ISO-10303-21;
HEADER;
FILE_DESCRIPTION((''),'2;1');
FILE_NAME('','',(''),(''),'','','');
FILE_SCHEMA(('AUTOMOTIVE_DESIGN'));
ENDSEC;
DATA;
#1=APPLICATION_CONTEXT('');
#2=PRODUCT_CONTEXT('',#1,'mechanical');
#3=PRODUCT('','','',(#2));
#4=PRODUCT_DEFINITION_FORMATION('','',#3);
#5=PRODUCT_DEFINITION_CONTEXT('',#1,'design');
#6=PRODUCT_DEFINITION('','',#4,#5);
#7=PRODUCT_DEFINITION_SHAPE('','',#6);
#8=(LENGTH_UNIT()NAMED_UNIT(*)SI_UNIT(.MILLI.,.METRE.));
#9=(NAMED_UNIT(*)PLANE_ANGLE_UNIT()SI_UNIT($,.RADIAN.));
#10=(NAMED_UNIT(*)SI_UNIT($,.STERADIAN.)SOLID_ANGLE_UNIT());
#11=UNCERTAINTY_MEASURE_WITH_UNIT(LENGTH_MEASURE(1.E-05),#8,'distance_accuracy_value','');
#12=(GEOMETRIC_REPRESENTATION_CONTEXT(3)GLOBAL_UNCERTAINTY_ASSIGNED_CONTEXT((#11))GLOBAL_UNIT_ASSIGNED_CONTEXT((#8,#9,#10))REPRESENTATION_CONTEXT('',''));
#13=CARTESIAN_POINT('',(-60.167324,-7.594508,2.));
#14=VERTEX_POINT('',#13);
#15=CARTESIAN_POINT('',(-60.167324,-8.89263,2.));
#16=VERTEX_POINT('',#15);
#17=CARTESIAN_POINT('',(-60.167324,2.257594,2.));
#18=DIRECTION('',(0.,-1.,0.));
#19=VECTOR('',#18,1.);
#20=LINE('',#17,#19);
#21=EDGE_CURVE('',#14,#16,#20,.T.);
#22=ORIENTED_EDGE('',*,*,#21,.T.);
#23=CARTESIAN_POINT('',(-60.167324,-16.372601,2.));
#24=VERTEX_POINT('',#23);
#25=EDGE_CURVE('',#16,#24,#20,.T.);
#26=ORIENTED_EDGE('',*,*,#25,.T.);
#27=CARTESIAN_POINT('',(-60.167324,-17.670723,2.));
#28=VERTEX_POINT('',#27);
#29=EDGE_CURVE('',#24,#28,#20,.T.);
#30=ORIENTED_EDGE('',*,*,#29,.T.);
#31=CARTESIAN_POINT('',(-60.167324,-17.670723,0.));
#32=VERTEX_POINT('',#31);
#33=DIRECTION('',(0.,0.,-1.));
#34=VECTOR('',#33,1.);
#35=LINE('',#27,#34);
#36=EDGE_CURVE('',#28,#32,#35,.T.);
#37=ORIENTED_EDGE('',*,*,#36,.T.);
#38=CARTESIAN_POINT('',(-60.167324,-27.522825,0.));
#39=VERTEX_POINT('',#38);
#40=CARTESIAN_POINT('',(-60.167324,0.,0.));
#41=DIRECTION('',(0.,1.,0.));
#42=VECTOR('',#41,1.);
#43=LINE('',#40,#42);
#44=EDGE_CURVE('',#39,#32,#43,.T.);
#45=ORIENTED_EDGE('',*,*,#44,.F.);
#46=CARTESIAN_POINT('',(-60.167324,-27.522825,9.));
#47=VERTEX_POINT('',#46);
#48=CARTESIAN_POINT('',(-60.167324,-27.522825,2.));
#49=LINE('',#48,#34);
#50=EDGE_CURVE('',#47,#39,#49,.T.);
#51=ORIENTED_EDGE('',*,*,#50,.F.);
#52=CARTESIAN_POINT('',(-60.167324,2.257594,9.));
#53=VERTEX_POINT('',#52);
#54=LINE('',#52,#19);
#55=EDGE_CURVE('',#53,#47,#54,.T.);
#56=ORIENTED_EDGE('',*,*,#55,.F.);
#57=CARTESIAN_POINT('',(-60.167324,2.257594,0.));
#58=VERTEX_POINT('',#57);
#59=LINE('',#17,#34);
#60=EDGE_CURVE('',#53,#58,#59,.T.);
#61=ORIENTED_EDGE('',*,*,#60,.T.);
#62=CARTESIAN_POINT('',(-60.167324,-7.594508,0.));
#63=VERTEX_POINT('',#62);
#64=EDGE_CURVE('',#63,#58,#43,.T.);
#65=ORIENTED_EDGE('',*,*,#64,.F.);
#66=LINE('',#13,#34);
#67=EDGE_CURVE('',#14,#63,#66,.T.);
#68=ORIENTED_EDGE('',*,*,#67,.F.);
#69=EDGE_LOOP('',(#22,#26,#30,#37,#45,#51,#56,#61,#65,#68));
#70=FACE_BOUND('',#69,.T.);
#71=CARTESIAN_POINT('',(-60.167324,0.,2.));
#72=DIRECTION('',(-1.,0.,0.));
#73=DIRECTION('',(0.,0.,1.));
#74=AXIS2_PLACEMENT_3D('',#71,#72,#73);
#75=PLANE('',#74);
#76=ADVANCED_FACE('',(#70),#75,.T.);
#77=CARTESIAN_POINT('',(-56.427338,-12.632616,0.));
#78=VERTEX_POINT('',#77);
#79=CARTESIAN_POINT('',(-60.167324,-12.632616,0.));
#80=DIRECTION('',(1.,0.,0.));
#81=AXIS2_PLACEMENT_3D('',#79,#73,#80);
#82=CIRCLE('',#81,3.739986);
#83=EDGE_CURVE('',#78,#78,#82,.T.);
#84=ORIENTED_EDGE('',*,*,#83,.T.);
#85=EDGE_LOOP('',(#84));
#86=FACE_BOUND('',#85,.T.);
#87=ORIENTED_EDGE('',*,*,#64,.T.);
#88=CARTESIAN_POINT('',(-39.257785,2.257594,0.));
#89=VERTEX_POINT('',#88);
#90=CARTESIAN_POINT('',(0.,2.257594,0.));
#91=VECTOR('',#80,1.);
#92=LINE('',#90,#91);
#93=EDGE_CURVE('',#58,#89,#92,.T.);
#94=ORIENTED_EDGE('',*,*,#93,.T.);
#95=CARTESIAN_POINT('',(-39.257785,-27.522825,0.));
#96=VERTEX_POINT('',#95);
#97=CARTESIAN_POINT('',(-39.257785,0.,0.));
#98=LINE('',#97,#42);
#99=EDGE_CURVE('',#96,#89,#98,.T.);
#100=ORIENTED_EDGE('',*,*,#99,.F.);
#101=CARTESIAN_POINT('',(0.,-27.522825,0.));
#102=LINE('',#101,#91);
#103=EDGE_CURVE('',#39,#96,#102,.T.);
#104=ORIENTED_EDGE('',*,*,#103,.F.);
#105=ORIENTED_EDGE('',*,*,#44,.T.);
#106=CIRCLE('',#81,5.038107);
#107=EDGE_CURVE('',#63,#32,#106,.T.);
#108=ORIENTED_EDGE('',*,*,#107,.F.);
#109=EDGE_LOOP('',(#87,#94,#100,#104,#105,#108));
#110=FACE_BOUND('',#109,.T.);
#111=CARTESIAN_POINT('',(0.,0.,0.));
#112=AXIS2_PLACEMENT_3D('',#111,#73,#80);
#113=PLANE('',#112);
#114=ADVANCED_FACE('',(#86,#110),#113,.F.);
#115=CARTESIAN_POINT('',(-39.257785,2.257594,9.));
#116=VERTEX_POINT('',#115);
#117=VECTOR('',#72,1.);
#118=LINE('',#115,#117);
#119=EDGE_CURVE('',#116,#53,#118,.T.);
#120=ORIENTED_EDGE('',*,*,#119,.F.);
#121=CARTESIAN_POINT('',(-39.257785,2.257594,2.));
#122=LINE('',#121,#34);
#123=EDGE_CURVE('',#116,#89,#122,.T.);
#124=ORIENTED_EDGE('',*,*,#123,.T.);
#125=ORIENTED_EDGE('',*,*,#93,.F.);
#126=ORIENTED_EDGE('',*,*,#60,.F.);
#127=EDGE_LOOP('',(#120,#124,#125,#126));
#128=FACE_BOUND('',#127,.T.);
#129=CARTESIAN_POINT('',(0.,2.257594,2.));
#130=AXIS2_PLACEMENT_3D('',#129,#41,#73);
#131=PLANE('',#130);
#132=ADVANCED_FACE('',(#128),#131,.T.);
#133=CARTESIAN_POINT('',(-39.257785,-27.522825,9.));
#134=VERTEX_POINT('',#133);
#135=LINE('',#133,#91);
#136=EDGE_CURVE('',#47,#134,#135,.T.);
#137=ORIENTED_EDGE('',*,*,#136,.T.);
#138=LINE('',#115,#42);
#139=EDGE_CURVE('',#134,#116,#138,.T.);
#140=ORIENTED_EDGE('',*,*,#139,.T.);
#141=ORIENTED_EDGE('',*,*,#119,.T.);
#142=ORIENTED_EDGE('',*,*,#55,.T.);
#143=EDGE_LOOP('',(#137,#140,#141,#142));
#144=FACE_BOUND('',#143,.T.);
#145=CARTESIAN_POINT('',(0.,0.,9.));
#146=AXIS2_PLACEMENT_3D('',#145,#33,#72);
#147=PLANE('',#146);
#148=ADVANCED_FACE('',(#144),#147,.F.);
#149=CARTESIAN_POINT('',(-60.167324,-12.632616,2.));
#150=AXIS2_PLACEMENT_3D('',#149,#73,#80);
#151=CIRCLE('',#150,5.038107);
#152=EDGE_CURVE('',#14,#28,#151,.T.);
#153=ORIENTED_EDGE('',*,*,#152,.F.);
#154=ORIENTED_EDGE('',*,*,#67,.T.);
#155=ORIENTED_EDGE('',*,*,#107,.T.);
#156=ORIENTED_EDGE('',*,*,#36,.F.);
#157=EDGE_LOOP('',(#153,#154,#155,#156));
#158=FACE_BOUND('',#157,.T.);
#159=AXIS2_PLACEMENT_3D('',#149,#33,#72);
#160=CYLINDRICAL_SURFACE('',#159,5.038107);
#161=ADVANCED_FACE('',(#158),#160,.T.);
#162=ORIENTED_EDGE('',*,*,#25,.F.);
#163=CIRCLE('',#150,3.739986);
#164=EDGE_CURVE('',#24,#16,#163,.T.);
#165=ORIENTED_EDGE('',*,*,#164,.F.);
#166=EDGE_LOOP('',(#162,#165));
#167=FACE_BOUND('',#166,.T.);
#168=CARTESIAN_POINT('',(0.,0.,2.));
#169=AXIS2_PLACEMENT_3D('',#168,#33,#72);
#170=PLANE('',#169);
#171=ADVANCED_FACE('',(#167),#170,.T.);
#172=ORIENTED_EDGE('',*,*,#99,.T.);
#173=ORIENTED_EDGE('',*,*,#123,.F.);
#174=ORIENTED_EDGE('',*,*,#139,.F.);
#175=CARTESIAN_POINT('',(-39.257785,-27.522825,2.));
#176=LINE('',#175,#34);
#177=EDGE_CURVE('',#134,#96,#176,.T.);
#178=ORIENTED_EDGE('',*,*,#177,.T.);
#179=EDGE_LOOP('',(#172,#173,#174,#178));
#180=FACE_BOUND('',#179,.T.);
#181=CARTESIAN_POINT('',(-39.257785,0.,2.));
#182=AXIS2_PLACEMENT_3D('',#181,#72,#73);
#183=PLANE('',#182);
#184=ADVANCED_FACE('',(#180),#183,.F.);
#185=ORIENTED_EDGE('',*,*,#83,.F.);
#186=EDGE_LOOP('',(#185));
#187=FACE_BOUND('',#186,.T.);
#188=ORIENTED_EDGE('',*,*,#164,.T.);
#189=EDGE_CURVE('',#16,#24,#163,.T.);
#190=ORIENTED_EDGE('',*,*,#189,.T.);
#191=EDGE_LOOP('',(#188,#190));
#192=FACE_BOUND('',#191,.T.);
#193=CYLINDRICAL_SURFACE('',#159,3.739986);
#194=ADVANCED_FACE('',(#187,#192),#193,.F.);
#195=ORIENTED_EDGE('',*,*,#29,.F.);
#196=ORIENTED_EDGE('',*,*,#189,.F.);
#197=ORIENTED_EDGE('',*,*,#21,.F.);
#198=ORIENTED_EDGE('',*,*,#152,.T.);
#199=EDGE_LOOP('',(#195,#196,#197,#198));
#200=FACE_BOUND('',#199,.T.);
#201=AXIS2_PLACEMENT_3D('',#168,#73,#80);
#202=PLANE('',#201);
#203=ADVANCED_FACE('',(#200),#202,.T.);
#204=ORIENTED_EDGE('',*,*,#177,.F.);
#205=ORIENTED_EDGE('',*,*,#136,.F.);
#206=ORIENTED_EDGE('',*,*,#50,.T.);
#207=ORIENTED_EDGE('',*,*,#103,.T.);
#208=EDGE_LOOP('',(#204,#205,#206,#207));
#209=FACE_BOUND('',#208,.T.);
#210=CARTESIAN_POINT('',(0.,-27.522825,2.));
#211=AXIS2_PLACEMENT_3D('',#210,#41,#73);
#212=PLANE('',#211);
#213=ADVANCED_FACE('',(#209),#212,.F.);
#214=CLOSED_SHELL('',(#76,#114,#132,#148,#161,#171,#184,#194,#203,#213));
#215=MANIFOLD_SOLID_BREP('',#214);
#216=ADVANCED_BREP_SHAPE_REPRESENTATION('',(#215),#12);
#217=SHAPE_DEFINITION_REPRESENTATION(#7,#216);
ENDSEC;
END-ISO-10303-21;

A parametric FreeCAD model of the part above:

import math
import FreeCAD as App
import Part
import Sketcher


def add_polygon(sketch, points):
    """Adds a closed chain of lines whose ends are joined by coincident constraints."""
    first, n = sketch.GeometryCount, len(points)
    for a, b in zip(points, points[1:] + points[:1]):
        sketch.addGeometry(Part.LineSegment(App.Vector(*a, 0), App.Vector(*b, 0)), False)
    for i in range(n):
        sketch.addConstraint(Sketcher.Constraint("Coincident", first + i, 2, first + (i + 1) % n, 1))

doc = App.newDocument("Part")
body = doc.addObject("PartDesign::Body", "Body")

# Sketch on XY plane
sketch1 = body.newObject("Sketcher::SketchObject", "Sketch")
sketch1.AttachmentSupport = (doc.getObject("XY_Plane"), [""])
sketch1.MapMode = "FlatFace"
sketch1.addGeometry([
    Part.LineSegment(App.Vector(-60.167324, -17.670723, 0), App.Vector(-60.167324, -27.522825, 0)),  # 0
    Part.LineSegment(App.Vector(-60.167324, -27.522825, 0), App.Vector(-39.257785, -27.522825, 0)),  # 1
    Part.LineSegment(App.Vector(-39.257785, -27.522825, 0), App.Vector(-39.257785, 2.257594, 0)),  # 2
    Part.LineSegment(App.Vector(-39.257785, 2.257594, 0), App.Vector(-60.167324, 2.257594, 0)),  # 3
    Part.LineSegment(App.Vector(-60.167324, 2.257594, 0), App.Vector(-60.167324, -7.594508, 0)),  # 4
    Part.ArcOfCircle(Part.Circle(App.Vector(-60.167324, -12.632616, 0), App.Vector(0, 0, 1), 5.038107), math.radians(90), math.radians(270)),  # 5
    Part.Circle(App.Vector(-60.167324, -12.632616, 0), App.Vector(0, 0, 1), 3.739986),  # 6
], False)
sketch1.addConstraint([
    Sketcher.Constraint("Coincident", 0, 2, 1, 1),
    Sketcher.Constraint("Coincident", 1, 2, 2, 1),
    Sketcher.Constraint("Coincident", 2, 2, 3, 1),
    Sketcher.Constraint("Coincident", 3, 2, 4, 1),
    Sketcher.Constraint("Coincident", 4, 2, 5, 1),
    Sketcher.Constraint("Coincident", 5, 2, 0, 1),
    Sketcher.Constraint("Vertical", 0),
    Sketcher.Constraint("Horizontal", 1),
    Sketcher.Constraint("Vertical", 2),
    Sketcher.Constraint("Horizontal", 3),
    Sketcher.Constraint("Vertical", 4),
    Sketcher.Constraint("Coincident", 6, 3, 5, 3),
    Sketcher.Constraint("Vertical", 6, 3, 0, 2),
    Sketcher.Constraint("Vertical", 0, 2, 3, 2),
    Sketcher.Constraint("Equal", 0, 4),
    Sketcher.Constraint("Diameter", 6, 7.479971),
    Sketcher.Constraint("DistanceY", 0, 2, 0, 1, 9.852102),
    Sketcher.Constraint("Radius", 5, 5.038107),
    Sketcher.Constraint("DistanceX", 1, 1, 1, 2, 20.909539),
    Sketcher.Constraint("DistanceY", 4, 2, -1, 1, 7.594508),
    Sketcher.Constraint("DistanceX", 5, 3, -1, 1, 60.167324),
])
pad1 = body.newObject("PartDesign::Pad", "Pad")
pad1.Profile = sketch1
pad1.Length = 2

# Sketch on XY plane
sketch2 = body.newObject("Sketcher::SketchObject", "Sketch001")
sketch2.AttachmentSupport = (doc.getObject("XY_Plane"), [""])
sketch2.MapMode = "FlatFace"
sketch2.AttachmentOffset = App.Placement(App.Vector(0, 0, 2), App.Rotation())
add_polygon(sketch2, [(-60.167324, 2.257594), (-60.167324, -27.522825), (-39.257785, -27.522825), (-39.257785, 2.257594)])  # lines 0-3
sketch2.addConstraint([
    Sketcher.Constraint("Vertical", 0),
    Sketcher.Constraint("Horizontal", 1),
    Sketcher.Constraint("Vertical", 2),
    Sketcher.Constraint("Horizontal", 3),
    Sketcher.Constraint("DistanceX", 1, 1, 1, 2, 20.909539),
    Sketcher.Constraint("DistanceY", 0, 2, 0, 1, 29.780418),
    Sketcher.Constraint("DistanceX", 0, 2, -1, 1, 60.167324),
    Sketcher.Constraint("DistanceY", 0, 2, -1, 1, 27.522825),
])
pad2 = body.newObject("PartDesign::Pad", "Pad001")
pad2.Profile = sketch2
pad2.Length = 7

doc.recompute()
